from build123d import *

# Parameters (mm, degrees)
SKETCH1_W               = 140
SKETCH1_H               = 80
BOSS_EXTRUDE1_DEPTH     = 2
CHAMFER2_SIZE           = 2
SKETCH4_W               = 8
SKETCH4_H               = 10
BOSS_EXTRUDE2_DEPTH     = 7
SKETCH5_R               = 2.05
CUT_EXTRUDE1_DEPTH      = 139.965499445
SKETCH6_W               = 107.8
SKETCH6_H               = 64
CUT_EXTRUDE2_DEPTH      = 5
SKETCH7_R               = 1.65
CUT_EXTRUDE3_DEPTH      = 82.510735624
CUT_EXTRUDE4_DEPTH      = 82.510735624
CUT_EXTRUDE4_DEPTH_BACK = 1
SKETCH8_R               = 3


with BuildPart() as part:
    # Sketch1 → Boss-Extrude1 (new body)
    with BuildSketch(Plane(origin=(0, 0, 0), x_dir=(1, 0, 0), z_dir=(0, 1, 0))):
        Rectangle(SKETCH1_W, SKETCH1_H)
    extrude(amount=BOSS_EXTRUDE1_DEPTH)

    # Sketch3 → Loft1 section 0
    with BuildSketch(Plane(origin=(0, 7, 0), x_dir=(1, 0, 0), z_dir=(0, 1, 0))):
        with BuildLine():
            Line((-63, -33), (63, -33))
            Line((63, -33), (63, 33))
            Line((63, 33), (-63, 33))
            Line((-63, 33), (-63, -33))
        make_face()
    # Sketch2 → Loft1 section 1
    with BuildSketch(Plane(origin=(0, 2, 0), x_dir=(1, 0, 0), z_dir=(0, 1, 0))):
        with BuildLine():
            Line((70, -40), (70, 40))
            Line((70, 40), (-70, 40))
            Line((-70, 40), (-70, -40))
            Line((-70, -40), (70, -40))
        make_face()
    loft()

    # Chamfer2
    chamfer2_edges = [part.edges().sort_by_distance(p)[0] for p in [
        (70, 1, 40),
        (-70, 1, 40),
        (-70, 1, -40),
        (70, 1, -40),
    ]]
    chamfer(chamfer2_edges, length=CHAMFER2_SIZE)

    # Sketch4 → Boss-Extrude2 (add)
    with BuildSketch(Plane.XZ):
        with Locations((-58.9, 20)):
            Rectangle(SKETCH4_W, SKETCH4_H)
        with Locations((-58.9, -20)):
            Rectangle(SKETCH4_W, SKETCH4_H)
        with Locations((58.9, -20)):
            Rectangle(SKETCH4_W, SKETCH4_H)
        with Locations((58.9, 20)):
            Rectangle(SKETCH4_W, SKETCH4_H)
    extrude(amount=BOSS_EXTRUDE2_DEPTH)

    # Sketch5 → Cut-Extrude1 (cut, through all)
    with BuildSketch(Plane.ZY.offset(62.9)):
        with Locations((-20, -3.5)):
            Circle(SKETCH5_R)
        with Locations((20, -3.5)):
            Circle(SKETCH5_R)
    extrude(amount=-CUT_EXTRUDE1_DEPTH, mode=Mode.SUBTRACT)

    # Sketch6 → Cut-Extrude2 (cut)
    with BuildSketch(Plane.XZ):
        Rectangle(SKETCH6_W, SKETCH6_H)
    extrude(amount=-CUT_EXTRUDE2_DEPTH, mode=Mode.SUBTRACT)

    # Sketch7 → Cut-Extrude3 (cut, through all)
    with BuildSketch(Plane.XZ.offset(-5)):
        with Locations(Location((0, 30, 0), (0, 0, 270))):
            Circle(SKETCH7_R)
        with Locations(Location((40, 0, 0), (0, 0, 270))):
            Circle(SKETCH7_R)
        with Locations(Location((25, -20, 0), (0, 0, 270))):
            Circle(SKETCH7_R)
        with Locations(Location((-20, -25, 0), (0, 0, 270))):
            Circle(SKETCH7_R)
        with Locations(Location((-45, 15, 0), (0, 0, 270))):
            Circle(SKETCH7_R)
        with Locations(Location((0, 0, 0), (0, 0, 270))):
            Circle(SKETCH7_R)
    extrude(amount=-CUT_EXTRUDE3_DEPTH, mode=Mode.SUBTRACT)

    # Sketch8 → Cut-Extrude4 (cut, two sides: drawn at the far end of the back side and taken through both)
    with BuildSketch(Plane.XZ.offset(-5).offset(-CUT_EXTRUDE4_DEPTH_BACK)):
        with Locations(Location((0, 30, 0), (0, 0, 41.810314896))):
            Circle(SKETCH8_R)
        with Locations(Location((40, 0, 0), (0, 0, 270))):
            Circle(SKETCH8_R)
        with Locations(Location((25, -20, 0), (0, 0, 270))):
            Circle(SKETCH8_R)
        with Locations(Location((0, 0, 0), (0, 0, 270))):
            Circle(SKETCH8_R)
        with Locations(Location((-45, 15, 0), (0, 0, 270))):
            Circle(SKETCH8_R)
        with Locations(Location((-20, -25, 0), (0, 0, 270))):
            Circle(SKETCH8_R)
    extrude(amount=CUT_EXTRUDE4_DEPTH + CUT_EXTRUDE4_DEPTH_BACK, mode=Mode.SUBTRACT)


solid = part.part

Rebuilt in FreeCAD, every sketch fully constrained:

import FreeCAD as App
import Part
import Sketcher
from FreeCAD import Vector


def edges_at(feature, points):
    """Names of the edges that pass closest to the given points."""
    edges = feature.Shape.Edges
    near = lambda p: min(range(len(edges)), key=lambda i: edges[i].distToShape(Part.Vertex(*p))[0])
    return sorted({f"Edge{near(p) + 1}" for p in points})

doc = App.newDocument("Part")
body = doc.addObject("PartDesign::Body", "Body")

# Sketch on XZ plane
sketch1 = body.newObject("Sketcher::SketchObject", "Sketch")
sketch1.AttachmentSupport = (doc.getObject("XZ_Plane"), [""])
sketch1.MapMode = "FlatFace"
sketch1.addGeometry([
    Part.LineSegment(Vector(-70, -40, 0), Vector(-70, 40, 0)),
    Part.LineSegment(Vector(-70, 40, 0), Vector(70, 40, 0)),
    Part.LineSegment(Vector(70, 40, 0), Vector(70, -40, 0)),
    Part.LineSegment(Vector(70, -40, 0), Vector(-70, -40, 0)),
], False)
sketch1.addConstraint([
    Sketcher.Constraint("Coincident", 0, 2, 1, 1),
    Sketcher.Constraint("Coincident", 1, 2, 2, 1),
    Sketcher.Constraint("Coincident", 2, 2, 3, 1),
    Sketcher.Constraint("Coincident", 3, 2, 0, 1),
    Sketcher.Constraint("Vertical", 0),
    Sketcher.Constraint("Horizontal", 1),
    Sketcher.Constraint("Vertical", 2),
    Sketcher.Constraint("Horizontal", 3),
    Sketcher.Constraint("Symmetric", 0, 2, 2, 2, -1, 1),
    Sketcher.Constraint("DistanceX", 1, 1, 1, 2, 140.0),
    Sketcher.Constraint("DistanceY", 0, 1, 0, 2, 80.0),
])
pad1 = body.newObject("PartDesign::Pad", "Pad")
pad1.Profile = sketch1
pad1.Length = 2
pad1.Reversed = True

# Sketch on XZ plane
sketch2 = body.newObject("Sketcher::SketchObject", "Sketch001")
sketch2.AttachmentSupport = (doc.getObject("XZ_Plane"), [""])
sketch2.MapMode = "FlatFace"
sketch2.AttachmentOffset = App.Placement(Vector(0, 0, -7), App.Rotation())
sketch2.addGeometry([
    Part.LineSegment(Vector(-63, 33, 0), Vector(63, 33, 0)),
    Part.LineSegment(Vector(63, 33, 0), Vector(63, -33, 0)),
    Part.LineSegment(Vector(63, -33, 0), Vector(-63, -33, 0)),
    Part.LineSegment(Vector(-63, -33, 0), Vector(-63, 33, 0)),
], False)
sketch2.addConstraint([
    Sketcher.Constraint("Coincident", 0, 2, 1, 1),
    Sketcher.Constraint("Coincident", 1, 2, 2, 1),
    Sketcher.Constraint("Coincident", 2, 2, 3, 1),
    Sketcher.Constraint("Coincident", 3, 2, 0, 1),
    Sketcher.Constraint("Horizontal", 0),
    Sketcher.Constraint("Vertical", 1),
    Sketcher.Constraint("Horizontal", 2),
    Sketcher.Constraint("Vertical", 3),
    Sketcher.Constraint("Symmetric", 0, 2, 2, 2, -1, 1),
    Sketcher.Constraint("DistanceX", 0, 1, 0, 2, 126.0),
    Sketcher.Constraint("DistanceY", 1, 2, 1, 1, 66.0),
])

# Sketch on XZ plane
sketch3 = body.newObject("Sketcher::SketchObject", "Sketch002")
sketch3.AttachmentSupport = (doc.getObject("XZ_Plane"), [""])
sketch3.MapMode = "FlatFace"
sketch3.AttachmentOffset = App.Placement(Vector(0, 0, -2), App.Rotation())
sketch3.addGeometry([
    Part.LineSegment(Vector(70, 40, 0), Vector(70, -40, 0)),
    Part.LineSegment(Vector(70, -40, 0), Vector(-70, -40, 0)),
    Part.LineSegment(Vector(-70, -40, 0), Vector(-70, 40, 0)),
    Part.LineSegment(Vector(-70, 40, 0), Vector(70, 40, 0)),
], False)
sketch3.addConstraint([
    Sketcher.Constraint("Coincident", 0, 2, 1, 1),
    Sketcher.Constraint("Coincident", 1, 2, 2, 1),
    Sketcher.Constraint("Coincident", 2, 2, 3, 1),
    Sketcher.Constraint("Coincident", 3, 2, 0, 1),
    Sketcher.Constraint("Vertical", 0),
    Sketcher.Constraint("Horizontal", 1),
    Sketcher.Constraint("Vertical", 2),
    Sketcher.Constraint("Horizontal", 3),
    Sketcher.Constraint("Symmetric", 0, 2, 2, 2, -1, 1),
    Sketcher.Constraint("DistanceX", 1, 2, 1, 1, 140.0),
    Sketcher.Constraint("DistanceY", 0, 2, 0, 1, 80.0),
])

additiveloft = body.newObject("PartDesign::AdditiveLoft", "AdditiveLoft")
additiveloft.Profile = sketch2
additiveloft.Sections = [sketch3]
doc.recompute()

chamfer = body.newObject("PartDesign::Chamfer", "Chamfer")
chamfer.Base = (additiveloft, edges_at(additiveloft, [
    (70, 1, 40),
    (-70, 1, 40),
    (-70, 1, -40),
    (70, 1, -40),
]))
chamfer.Size = 2

# Sketch on XZ plane
sketch4 = body.newObject("Sketcher::SketchObject", "Sketch003")
sketch4.AttachmentSupport = (doc.getObject("XZ_Plane"), [""])
sketch4.MapMode = "FlatFace"
sketch4.addGeometry([
    Part.LineSegment(Vector(-63, 25, 0), Vector(-63, 15, 0)),  # 0
    Part.LineSegment(Vector(-63, 15, 0), Vector(-55, 15, 0)),  # 1
    Part.LineSegment(Vector(-55, 15, 0), Vector(-55, 25, 0)),  # 2
    Part.LineSegment(Vector(-55, 25, 0), Vector(-63, 25, 0)),  # 3
    Part.LineSegment(Vector(-63, -15, 0), Vector(-63, -25, 0)),  # 4
    Part.LineSegment(Vector(-63, -25, 0), Vector(-55, -25, 0)),  # 5
    Part.LineSegment(Vector(-55, -25, 0), Vector(-55, -15, 0)),  # 6
    Part.LineSegment(Vector(-55, -15, 0), Vector(-63, -15, 0)),  # 7
    Part.LineSegment(Vector(55, -15, 0), Vector(55, -25, 0)),  # 8
    Part.LineSegment(Vector(55, -25, 0), Vector(63, -25, 0)),  # 9
    Part.LineSegment(Vector(63, -25, 0), Vector(63, -15, 0)),  # 10
    Part.LineSegment(Vector(63, -15, 0), Vector(55, -15, 0)),  # 11
    Part.LineSegment(Vector(55, 25, 0), Vector(55, 15, 0)),  # 12
    Part.LineSegment(Vector(55, 15, 0), Vector(63, 15, 0)),  # 13
    Part.LineSegment(Vector(63, 15, 0), Vector(63, 25, 0)),  # 14
    Part.LineSegment(Vector(63, 25, 0), Vector(55, 25, 0)),  # 15
], False)
sketch4.addConstraint([
    Sketcher.Constraint("Coincident", 0, 2, 1, 1),
    Sketcher.Constraint("Coincident", 1, 2, 2, 1),
    Sketcher.Constraint("Coincident", 2, 2, 3, 1),
    Sketcher.Constraint("Coincident", 3, 2, 0, 1),
    Sketcher.Constraint("Coincident", 4, 2, 5, 1),
    Sketcher.Constraint("Coincident", 5, 2, 6, 1),
    Sketcher.Constraint("Coincident", 6, 2, 7, 1),
    Sketcher.Constraint("Coincident", 7, 2, 4, 1),
    Sketcher.Constraint("Coincident", 8, 2, 9, 1),
    Sketcher.Constraint("Coincident", 9, 2, 10, 1),
    Sketcher.Constraint("Coincident", 10, 2, 11, 1),
    Sketcher.Constraint("Coincident", 11, 2, 8, 1),
    Sketcher.Constraint("Coincident", 12, 2, 13, 1),
    Sketcher.Constraint("Coincident", 13, 2, 14, 1),
    Sketcher.Constraint("Coincident", 14, 2, 15, 1),
    Sketcher.Constraint("Coincident", 15, 2, 12, 1),
    Sketcher.Constraint("Vertical", 0),
    Sketcher.Constraint("Horizontal", 1),
    Sketcher.Constraint("Vertical", 2),
    Sketcher.Constraint("Horizontal", 3),
    Sketcher.Constraint("Vertical", 4),
    Sketcher.Constraint("Horizontal", 5),
    Sketcher.Constraint("Vertical", 6),
    Sketcher.Constraint("Horizontal", 7),
    Sketcher.Constraint("Vertical", 8),
    Sketcher.Constraint("Horizontal", 9),
    Sketcher.Constraint("Vertical", 10),
    Sketcher.Constraint("Horizontal", 11),
    Sketcher.Constraint("Vertical", 12),
    Sketcher.Constraint("Horizontal", 13),
    Sketcher.Constraint("Vertical", 14),
    Sketcher.Constraint("Horizontal", 15),
    Sketcher.Constraint("Symmetric", 2, 2, 8, 2, -1, 1),
    Sketcher.Constraint("Symmetric", 0, 2, 10, 2, -1, 1),
    Sketcher.Constraint("Symmetric", 6, 2, 12, 2, -1, 1),
    Sketcher.Constraint("Symmetric", 4, 2, 14, 2, -1, 1),
    Sketcher.Constraint("Symmetric", 5, 2, 8, 2, -2),
    Sketcher.Constraint("Symmetric", 7, 2, 10, 2, -2),
    Sketcher.Constraint("DistanceX", 1, 1, 1, 2, 8.0),
    Sketcher.Constraint("DistanceY", 0, 2, 0, 1, 10.0),
    Sketcher.Constraint("DistanceY", -1, 1, 0, 2, 15.0),
    Sketcher.Constraint("DistanceX", 0, 2, -1, 1, 62.9),
])
pad2 = body.newObject("PartDesign::Pad", "Pad001")
pad2.Profile = sketch4
pad2.Length = 7

# Sketch on YZ plane
sketch5 = body.newObject("Sketcher::SketchObject", "Sketch004")
sketch5.AttachmentSupport = (doc.getObject("YZ_Plane"), [""])
sketch5.MapMode = "FlatFace"
sketch5.AttachmentOffset = App.Placement(Vector(0, 0, -62.9), App.Rotation())
sketch5.addGeometry([
    Part.Circle(Vector(-3.5, -20, 0), Vector(0, 0, 1), 2),
    Part.Circle(Vector(-3.5, 20, 0), Vector(0, 0, 1), 2),
], False)
sketch5.addConstraint([
    Sketcher.Constraint("Equal", 0, 1),
    Sketcher.Constraint("Symmetric", 0, 3, 1, 3, -1),
    Sketcher.Constraint("Diameter", 0, 4.1),
    Sketcher.Constraint("DistanceY", 0, 3, -1, 1, 20.0),
    Sketcher.Constraint("DistanceX", 0, 3, -1, 1, 3.5),
])
pocket1 = body.newObject("PartDesign::Pocket", "Pocket")
pocket1.Profile = sketch5
pocket1.Type = "ThroughAll"
pocket1.Reversed = True

# Sketch on XZ plane
sketch6 = body.newObject("Sketcher::SketchObject", "Sketch005")
sketch6.AttachmentSupport = (doc.getObject("XZ_Plane"), [""])
sketch6.MapMode = "FlatFace"
sketch6.addGeometry([
    Part.LineSegment(Vector(-54, 32, 0), Vector(-54, -32, 0)),
    Part.LineSegment(Vector(-54, -32, 0), Vector(54, -32, 0)),
    Part.LineSegment(Vector(54, -32, 0), Vector(54, 32, 0)),
    Part.LineSegment(Vector(54, 32, 0), Vector(-54, 32, 0)),
], False)
sketch6.addConstraint([
    Sketcher.Constraint("Coincident", 0, 2, 1, 1),
    Sketcher.Constraint("Coincident", 1, 2, 2, 1),
    Sketcher.Constraint("Coincident", 2, 2, 3, 1),
    Sketcher.Constraint("Coincident", 3, 2, 0, 1),
    Sketcher.Constraint("Vertical", 0),
    Sketcher.Constraint("Horizontal", 1),
    Sketcher.Constraint("Vertical", 2),
    Sketcher.Constraint("Horizontal", 3),
    Sketcher.Constraint("Symmetric", 0, 2, 2, 2, -1, 1),
    Sketcher.Constraint("DistanceY", 0, 2, 0, 1, 64.0),
    Sketcher.Constraint("DistanceX", 1, 1, 1, 2, 107.8),
])
pocket2 = body.newObject("PartDesign::Pocket", "Pocket001")
pocket2.Profile = sketch6
pocket2.Length = 5

# Sketch on XZ plane
sketch7 = body.newObject("Sketcher::SketchObject", "Sketch006")
sketch7.AttachmentSupport = (doc.getObject("XZ_Plane"), [""])
sketch7.MapMode = "FlatFace"
sketch7.AttachmentOffset = App.Placement(Vector(0, 0, -5), App.Rotation())
sketch7.addGeometry([
    Part.Circle(Vector(0, 30, 0), Vector(0, 0, 1), 1.6),  # 0
    Part.Circle(Vector(40, 0, 0), Vector(0, 0, 1), 1.6),  # 1
    Part.Circle(Vector(25, -20, 0), Vector(0, 0, 1), 1.6),  # 2
    Part.Circle(Vector(-20, -25, 0), Vector(0, 0, 1), 1.6),  # 3
    Part.Circle(Vector(-45, 15, 0), Vector(0, 0, 1), 1.6),  # 4
    Part.Circle(Vector(0, 0, 0), Vector(0, 0, 1), 1.6),  # 5
], False)
sketch7.addConstraint([
    Sketcher.Constraint("Coincident", 5, 3, -1, 1),
    Sketcher.Constraint("Equal", 0, 1),
    Sketcher.Constraint("Equal", 1, 2),
    Sketcher.Constraint("Equal", 2, 3),
    Sketcher.Constraint("Equal", 3, 4),
    Sketcher.Constraint("Equal", 4, 5),
    Sketcher.Constraint("PointOnObject", 0, 3, -2),
    Sketcher.Constraint("PointOnObject", 1, 3, -1),
    Sketcher.Constraint("Diameter", 0, 3.3),
    Sketcher.Constraint("DistanceY", -1, 1, 0, 3, 30.0),
    Sketcher.Constraint("DistanceX", -1, 1, 1, 3, 40.0),
    Sketcher.Constraint("DistanceX", -1, 1, 2, 3, 25.0),
    Sketcher.Constraint("DistanceY", 2, 3, -1, 1, 20.0),
    Sketcher.Constraint("DistanceX", 3, 3, -1, 1, 20.0),
    Sketcher.Constraint("DistanceY", 3, 3, -1, 1, 25.0),
    Sketcher.Constraint("DistanceX", 4, 3, -1, 1, 45.0),
    Sketcher.Constraint("DistanceY", -1, 1, 4, 3, 15.0),
])
pocket3 = body.newObject("PartDesign::Pocket", "Pocket002")
pocket3.Profile = sketch7
pocket3.Type = "ThroughAll"

# Sketch on XZ plane
sketch8 = body.newObject("Sketcher::SketchObject", "Sketch007")
sketch8.AttachmentSupport = (doc.getObject("XZ_Plane"), [""])
sketch8.MapMode = "FlatFace"
sketch8.AttachmentOffset = App.Placement(Vector(0, 0, -5), App.Rotation())
sketch8.addGeometry([
    Part.Circle(Vector(0, 30, 0), Vector(0, 0, 1), 3),  # 0
    Part.Circle(Vector(40, 0, 0), Vector(0, 0, 1), 3),  # 1
    Part.Circle(Vector(25, -20, 0), Vector(0, 0, 1), 3),  # 2
    Part.Circle(Vector(0, 0, 0), Vector(0, 0, 1), 3),  # 3
    Part.Circle(Vector(-45, 15, 0), Vector(0, 0, 1), 3),  # 4
    Part.Circle(Vector(-20, -25, 0), Vector(0, 0, 1), 3),  # 5
], False)
sketch8.addConstraint([
    Sketcher.Constraint("Coincident", 3, 3, -1, 1),
    Sketcher.Constraint("Equal", 0, 1),
    Sketcher.Constraint("Equal", 1, 2),
    Sketcher.Constraint("Equal", 2, 3),
    Sketcher.Constraint("Equal", 3, 4),
    Sketcher.Constraint("Equal", 4, 5),
    Sketcher.Constraint("PointOnObject", 0, 3, -2),
    Sketcher.Constraint("PointOnObject", 1, 3, -1),
    Sketcher.Constraint("Diameter", 0, 6.0),
    Sketcher.Constraint("DistanceY", -1, 1, 0, 3, 30.0),
    Sketcher.Constraint("DistanceX", -1, 1, 1, 3, 40.0),
    Sketcher.Constraint("DistanceX", -1, 1, 2, 3, 25.0),
    Sketcher.Constraint("DistanceY", 2, 3, -1, 1, 20.0),
    Sketcher.Constraint("DistanceX", 4, 3, -1, 1, 45.0),
    Sketcher.Constraint("DistanceY", -1, 1, 4, 3, 15.0),
    Sketcher.Constraint("DistanceX", 5, 3, -1, 1, 20.0),
    Sketcher.Constraint("DistanceY", 5, 3, -1, 1, 25.0),
])
pocket4 = body.newObject("PartDesign::Pocket", "Pocket003")
pocket4.Profile = sketch8
pocket4.Type = "TwoLengths"
pocket4.Length = 82.510736
pocket4.Length2 = 1
pocket4.Reversed = True

doc.recompute()
